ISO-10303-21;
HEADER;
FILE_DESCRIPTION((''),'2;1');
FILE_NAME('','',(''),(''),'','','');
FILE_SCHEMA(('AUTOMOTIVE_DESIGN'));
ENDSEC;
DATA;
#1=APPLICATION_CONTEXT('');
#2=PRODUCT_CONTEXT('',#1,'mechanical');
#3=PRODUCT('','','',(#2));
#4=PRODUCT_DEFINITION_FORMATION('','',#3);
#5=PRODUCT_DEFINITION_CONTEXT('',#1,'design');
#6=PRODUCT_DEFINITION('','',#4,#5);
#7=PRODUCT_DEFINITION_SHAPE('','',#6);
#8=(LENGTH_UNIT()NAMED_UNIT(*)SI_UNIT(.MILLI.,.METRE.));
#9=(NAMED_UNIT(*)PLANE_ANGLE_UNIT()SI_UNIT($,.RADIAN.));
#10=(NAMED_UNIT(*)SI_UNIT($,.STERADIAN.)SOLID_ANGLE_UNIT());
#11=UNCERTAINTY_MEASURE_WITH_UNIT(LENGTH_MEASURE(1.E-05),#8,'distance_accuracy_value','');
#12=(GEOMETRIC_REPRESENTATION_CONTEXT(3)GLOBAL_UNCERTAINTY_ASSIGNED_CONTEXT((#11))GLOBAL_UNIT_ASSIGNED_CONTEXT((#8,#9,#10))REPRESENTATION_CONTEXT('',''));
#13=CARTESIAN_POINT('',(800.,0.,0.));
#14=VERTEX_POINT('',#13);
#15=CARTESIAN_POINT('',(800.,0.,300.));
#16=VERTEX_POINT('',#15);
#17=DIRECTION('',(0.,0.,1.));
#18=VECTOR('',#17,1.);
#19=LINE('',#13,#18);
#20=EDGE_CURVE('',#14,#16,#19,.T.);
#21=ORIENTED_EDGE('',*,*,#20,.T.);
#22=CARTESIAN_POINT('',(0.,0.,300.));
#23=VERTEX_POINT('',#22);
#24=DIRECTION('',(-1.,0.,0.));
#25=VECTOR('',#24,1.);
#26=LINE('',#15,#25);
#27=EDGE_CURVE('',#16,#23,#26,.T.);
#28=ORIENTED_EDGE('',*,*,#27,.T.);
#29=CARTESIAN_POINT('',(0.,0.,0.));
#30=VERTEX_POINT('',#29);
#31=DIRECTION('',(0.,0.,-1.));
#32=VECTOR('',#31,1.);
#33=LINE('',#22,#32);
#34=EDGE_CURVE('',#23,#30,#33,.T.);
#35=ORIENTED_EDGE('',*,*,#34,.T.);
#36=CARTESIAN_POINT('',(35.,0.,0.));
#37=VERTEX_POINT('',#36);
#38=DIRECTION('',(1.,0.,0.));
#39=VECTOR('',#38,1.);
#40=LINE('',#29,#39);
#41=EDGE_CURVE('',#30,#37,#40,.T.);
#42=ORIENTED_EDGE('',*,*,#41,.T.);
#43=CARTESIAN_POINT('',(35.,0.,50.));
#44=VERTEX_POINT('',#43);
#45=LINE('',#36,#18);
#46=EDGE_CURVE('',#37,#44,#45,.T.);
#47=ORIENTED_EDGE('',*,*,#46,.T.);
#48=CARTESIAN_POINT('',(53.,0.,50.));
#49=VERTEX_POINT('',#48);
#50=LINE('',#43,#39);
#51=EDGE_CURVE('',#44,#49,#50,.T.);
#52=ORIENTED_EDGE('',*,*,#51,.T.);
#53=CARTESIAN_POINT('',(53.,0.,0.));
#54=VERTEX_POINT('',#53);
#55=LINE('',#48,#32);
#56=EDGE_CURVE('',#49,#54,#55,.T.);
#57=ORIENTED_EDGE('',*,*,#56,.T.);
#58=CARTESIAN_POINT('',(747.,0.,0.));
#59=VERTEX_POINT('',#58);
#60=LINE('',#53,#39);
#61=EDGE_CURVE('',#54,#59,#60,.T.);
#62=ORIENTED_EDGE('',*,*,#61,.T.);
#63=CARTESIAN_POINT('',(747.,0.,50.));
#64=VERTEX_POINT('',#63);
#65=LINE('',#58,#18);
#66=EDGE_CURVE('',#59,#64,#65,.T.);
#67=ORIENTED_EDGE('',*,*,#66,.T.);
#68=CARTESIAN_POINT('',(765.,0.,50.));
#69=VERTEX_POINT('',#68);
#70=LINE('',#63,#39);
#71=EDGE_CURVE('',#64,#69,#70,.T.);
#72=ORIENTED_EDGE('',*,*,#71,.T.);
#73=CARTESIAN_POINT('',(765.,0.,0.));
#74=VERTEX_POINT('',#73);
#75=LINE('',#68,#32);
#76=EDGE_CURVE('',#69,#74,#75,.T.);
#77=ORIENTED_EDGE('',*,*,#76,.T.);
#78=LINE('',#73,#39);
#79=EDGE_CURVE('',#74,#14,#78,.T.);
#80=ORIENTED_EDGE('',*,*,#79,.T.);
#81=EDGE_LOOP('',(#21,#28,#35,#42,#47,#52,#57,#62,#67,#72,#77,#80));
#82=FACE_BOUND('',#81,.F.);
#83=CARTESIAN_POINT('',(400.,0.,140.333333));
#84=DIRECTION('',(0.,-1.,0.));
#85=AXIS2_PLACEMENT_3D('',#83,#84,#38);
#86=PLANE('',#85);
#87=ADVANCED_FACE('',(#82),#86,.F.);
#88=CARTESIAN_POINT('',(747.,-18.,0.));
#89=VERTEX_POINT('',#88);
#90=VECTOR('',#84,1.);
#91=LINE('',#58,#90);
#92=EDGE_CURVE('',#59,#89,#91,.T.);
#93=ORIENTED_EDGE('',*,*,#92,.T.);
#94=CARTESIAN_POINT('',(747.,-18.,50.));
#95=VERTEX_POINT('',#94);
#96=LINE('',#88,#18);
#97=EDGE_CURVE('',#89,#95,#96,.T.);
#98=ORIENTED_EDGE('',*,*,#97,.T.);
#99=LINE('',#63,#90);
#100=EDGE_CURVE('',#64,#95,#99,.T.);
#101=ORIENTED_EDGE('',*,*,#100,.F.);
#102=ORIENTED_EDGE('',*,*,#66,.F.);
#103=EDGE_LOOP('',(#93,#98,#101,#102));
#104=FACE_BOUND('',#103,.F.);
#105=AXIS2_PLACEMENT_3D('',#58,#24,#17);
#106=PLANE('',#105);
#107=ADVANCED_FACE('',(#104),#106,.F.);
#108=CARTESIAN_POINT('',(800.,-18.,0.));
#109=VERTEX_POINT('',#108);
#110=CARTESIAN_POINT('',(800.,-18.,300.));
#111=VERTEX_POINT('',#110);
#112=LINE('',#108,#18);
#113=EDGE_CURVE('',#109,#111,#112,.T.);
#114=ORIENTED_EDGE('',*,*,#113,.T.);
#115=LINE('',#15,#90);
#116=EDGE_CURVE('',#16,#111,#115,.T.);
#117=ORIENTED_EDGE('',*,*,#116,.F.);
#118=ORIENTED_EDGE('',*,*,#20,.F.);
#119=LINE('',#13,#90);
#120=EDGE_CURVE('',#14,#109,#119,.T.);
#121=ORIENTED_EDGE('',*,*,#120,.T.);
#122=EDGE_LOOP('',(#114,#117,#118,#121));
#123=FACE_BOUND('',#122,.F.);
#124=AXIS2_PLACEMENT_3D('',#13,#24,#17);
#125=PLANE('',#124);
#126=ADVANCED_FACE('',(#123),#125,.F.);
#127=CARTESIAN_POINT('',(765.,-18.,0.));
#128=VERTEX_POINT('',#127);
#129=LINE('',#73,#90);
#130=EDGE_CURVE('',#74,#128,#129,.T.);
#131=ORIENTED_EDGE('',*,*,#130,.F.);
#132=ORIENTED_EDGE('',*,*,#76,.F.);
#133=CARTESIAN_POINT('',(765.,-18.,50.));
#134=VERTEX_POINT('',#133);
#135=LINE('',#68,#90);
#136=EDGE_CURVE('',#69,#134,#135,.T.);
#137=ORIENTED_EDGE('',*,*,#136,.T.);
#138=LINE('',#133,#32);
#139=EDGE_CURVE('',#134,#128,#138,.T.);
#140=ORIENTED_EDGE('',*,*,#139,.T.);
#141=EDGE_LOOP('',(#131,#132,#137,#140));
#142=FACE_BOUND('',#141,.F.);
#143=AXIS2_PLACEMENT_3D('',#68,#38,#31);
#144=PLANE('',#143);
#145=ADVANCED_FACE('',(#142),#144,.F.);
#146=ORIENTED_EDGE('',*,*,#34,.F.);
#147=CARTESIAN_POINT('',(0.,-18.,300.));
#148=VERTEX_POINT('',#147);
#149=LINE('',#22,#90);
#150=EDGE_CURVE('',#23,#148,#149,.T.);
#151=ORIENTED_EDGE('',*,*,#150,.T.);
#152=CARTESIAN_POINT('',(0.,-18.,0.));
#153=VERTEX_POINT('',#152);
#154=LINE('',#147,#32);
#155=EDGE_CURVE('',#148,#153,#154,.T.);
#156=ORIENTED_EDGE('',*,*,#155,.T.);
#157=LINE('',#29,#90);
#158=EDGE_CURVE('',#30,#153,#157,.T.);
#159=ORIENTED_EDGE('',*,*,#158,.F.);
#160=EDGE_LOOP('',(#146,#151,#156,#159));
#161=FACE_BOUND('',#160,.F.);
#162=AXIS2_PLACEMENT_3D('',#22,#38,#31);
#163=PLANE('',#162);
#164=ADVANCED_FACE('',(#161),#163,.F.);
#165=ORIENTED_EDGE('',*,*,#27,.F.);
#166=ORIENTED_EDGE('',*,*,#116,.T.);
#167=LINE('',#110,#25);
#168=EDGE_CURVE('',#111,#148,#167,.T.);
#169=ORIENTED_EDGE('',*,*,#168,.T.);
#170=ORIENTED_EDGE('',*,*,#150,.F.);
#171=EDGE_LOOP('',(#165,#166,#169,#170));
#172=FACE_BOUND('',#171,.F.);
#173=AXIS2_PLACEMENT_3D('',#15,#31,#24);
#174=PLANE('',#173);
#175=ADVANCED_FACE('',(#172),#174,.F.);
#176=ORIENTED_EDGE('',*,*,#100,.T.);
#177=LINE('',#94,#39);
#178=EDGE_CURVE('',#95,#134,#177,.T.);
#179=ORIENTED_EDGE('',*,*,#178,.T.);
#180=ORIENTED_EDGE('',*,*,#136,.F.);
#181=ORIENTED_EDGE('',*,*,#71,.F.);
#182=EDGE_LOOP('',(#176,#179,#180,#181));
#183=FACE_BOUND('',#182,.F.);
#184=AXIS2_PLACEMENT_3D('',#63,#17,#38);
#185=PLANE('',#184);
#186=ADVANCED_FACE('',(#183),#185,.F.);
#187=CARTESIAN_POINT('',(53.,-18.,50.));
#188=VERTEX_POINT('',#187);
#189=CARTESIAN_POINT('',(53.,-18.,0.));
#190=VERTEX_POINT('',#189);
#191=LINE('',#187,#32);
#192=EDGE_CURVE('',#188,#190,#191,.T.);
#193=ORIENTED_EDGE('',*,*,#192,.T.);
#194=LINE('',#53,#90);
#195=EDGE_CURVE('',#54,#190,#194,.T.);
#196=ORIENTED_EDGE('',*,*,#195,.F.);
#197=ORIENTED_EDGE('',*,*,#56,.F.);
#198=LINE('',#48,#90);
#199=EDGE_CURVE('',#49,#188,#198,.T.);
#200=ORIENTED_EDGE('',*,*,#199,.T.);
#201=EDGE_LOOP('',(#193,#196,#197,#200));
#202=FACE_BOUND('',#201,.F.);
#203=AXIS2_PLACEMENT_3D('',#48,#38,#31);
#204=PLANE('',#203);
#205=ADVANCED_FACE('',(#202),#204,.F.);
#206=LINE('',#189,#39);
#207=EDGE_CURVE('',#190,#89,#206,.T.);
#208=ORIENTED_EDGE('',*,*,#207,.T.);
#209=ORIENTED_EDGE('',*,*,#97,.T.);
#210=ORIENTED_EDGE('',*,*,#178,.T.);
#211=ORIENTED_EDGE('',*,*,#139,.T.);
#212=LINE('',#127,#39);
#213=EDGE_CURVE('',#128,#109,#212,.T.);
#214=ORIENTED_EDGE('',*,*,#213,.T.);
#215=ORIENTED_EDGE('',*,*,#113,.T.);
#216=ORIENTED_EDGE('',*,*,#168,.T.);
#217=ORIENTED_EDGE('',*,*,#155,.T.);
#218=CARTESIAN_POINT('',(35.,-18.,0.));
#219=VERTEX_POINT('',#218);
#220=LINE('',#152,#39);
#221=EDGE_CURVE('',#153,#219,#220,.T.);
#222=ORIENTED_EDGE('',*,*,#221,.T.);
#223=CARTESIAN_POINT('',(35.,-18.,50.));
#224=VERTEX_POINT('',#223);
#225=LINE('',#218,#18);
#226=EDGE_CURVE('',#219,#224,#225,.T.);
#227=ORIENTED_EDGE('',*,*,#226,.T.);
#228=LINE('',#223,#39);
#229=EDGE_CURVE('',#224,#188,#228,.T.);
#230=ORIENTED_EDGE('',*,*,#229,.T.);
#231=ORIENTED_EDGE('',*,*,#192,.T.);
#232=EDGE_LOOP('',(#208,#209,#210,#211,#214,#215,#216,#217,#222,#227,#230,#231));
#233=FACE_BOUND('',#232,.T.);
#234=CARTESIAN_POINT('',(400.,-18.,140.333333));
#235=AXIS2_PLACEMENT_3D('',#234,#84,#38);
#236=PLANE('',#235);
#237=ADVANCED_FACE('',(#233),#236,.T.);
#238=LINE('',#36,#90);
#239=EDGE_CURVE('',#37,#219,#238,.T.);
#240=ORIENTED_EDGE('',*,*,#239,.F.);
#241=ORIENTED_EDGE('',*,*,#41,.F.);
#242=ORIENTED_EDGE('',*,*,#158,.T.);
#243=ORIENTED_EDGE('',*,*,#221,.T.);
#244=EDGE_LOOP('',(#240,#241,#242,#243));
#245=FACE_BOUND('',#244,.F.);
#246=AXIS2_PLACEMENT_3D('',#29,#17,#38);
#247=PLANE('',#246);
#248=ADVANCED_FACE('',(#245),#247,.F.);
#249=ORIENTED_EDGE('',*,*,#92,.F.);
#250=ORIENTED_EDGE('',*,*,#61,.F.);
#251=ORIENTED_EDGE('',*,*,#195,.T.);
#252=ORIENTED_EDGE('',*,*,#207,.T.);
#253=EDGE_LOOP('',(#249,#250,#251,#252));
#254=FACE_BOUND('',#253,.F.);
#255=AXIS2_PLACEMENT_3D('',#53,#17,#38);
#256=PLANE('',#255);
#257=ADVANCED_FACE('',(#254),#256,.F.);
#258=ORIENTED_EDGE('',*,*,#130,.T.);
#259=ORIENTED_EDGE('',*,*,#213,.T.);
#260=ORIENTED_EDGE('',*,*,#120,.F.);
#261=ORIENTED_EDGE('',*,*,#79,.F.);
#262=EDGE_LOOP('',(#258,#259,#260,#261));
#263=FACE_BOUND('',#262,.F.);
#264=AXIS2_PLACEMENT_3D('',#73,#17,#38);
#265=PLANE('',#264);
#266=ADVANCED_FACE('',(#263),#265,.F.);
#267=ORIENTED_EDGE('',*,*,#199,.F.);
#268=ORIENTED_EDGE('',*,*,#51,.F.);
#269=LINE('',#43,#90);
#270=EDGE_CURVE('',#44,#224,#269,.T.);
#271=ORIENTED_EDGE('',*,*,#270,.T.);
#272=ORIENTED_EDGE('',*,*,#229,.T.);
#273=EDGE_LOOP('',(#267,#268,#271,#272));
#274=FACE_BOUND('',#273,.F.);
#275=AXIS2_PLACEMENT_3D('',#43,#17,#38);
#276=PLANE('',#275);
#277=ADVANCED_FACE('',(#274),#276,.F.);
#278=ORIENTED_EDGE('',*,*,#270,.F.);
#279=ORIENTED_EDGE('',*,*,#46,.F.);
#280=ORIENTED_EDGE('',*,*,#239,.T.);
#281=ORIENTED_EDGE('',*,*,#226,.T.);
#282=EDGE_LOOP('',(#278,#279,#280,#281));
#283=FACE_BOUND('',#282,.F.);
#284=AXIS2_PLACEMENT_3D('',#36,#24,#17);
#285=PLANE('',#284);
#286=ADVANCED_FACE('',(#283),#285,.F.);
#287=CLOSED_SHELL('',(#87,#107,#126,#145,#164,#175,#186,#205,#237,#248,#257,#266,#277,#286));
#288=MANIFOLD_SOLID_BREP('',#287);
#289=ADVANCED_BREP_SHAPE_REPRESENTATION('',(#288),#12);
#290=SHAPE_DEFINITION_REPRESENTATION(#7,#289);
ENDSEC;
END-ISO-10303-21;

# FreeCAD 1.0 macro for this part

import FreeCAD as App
import Part
import Sketcher
from FreeCAD import Vector

doc = App.newDocument("Part")
body = doc.addObject("PartDesign::Body", "Body")

# Sketch on XZ plane
sketch1 = body.newObject("Sketcher::SketchObject", "Sketch")
sketch1.AttachmentSupport = (doc.getObject("XZ_Plane"), [""])
sketch1.MapMode = "FlatFace"
sketch1.addGeometry([
    Part.LineSegment(Vector(0, 0, 0), Vector(35, 0, 0)),  # 0
    Part.LineSegment(Vector(35, 0, 0), Vector(35, 50, 0)),  # 1
    Part.LineSegment(Vector(35, 50, 0), Vector(53, 50, 0)),  # 2
    Part.LineSegment(Vector(53, 50, 0), Vector(53, 0, 0)),  # 3
    Part.LineSegment(Vector(53, 0, 0), Vector(747, 0, 0)),  # 4
    Part.LineSegment(Vector(747, 0, 0), Vector(747, 50, 0)),  # 5
    Part.LineSegment(Vector(747, 50, 0), Vector(765, 50, 0)),  # 6
    Part.LineSegment(Vector(765, 50, 0), Vector(765, 0, 0)),  # 7
    Part.LineSegment(Vector(765, 0, 0), Vector(800, 0, 0)),  # 8
    Part.LineSegment(Vector(800, 0, 0), Vector(800, 300, 0)),  # 9
    Part.LineSegment(Vector(800, 300, 0), Vector(0, 300, 0)),  # 10
    Part.LineSegment(Vector(0, 300, 0), Vector(0, 0, 0)),  # 11
], False)
sketch1.addConstraint([
    Sketcher.Constraint("Coincident", 0, 2, 1, 1),
    Sketcher.Constraint("Coincident", 1, 2, 2, 1),
    Sketcher.Constraint("Coincident", 2, 2, 3, 1),
    Sketcher.Constraint("Coincident", 3, 2, 4, 1),
    Sketcher.Constraint("Coincident", 4, 2, 5, 1),
    Sketcher.Constraint("Coincident", 5, 2, 6, 1),
    Sketcher.Constraint("Coincident", 6, 2, 7, 1),
    Sketcher.Constraint("Coincident", 7, 2, 8, 1),
    Sketcher.Constraint("Coincident", 8, 2, 9, 1),
    Sketcher.Constraint("Coincident", 9, 2, 10, 1),
    Sketcher.Constraint("Coincident", 10, 2, 11, 1),
    Sketcher.Constraint("Coincident", 11, 2, 0, 1),
    Sketcher.Constraint("Horizontal", 0),
    Sketcher.Constraint("Vertical", 1),
    Sketcher.Constraint("Horizontal", 2),
    Sketcher.Constraint("Vertical", 3),
    Sketcher.Constraint("Horizontal", 4),
    Sketcher.Constraint("Vertical", 5),
    Sketcher.Constraint("Horizontal", 6),
    Sketcher.Constraint("Vertical", 7),
    Sketcher.Constraint("Horizontal", 8),
    Sketcher.Constraint("Vertical", 9),
    Sketcher.Constraint("Horizontal", 10),
    Sketcher.Constraint("Vertical", 11),
    Sketcher.Constraint("Coincident", 11, 2, -1, 1),
    Sketcher.Constraint("PointOnObject", 3, 2, -1),
    Sketcher.Constraint("PointOnObject", 7, 2, -1),
    Sketcher.Constraint("Horizontal", 2, 2, 5, 2),
    Sketcher.Constraint("Equal", 2, 6),
    Sketcher.Constraint("Equal", 0, 8),
    Sketcher.Constraint("DistanceX", 0, 1, 0, 2, 35.0),
    Sketcher.Constraint("DistanceX", 2, 1, 2, 2, 18.0),
    Sketcher.Constraint("DistanceX", 4, 1, 4, 2, 694.0),
    Sketcher.Constraint("DistanceY", 1, 1, 1, 2, 50.0),
    Sketcher.Constraint("DistanceY", 9, 1, 9, 2, 300.0),
])
pad1 = body.newObject("PartDesign::Pad", "Pad")
pad1.Profile = sketch1
pad1.Length = 18

doc.recompute()
